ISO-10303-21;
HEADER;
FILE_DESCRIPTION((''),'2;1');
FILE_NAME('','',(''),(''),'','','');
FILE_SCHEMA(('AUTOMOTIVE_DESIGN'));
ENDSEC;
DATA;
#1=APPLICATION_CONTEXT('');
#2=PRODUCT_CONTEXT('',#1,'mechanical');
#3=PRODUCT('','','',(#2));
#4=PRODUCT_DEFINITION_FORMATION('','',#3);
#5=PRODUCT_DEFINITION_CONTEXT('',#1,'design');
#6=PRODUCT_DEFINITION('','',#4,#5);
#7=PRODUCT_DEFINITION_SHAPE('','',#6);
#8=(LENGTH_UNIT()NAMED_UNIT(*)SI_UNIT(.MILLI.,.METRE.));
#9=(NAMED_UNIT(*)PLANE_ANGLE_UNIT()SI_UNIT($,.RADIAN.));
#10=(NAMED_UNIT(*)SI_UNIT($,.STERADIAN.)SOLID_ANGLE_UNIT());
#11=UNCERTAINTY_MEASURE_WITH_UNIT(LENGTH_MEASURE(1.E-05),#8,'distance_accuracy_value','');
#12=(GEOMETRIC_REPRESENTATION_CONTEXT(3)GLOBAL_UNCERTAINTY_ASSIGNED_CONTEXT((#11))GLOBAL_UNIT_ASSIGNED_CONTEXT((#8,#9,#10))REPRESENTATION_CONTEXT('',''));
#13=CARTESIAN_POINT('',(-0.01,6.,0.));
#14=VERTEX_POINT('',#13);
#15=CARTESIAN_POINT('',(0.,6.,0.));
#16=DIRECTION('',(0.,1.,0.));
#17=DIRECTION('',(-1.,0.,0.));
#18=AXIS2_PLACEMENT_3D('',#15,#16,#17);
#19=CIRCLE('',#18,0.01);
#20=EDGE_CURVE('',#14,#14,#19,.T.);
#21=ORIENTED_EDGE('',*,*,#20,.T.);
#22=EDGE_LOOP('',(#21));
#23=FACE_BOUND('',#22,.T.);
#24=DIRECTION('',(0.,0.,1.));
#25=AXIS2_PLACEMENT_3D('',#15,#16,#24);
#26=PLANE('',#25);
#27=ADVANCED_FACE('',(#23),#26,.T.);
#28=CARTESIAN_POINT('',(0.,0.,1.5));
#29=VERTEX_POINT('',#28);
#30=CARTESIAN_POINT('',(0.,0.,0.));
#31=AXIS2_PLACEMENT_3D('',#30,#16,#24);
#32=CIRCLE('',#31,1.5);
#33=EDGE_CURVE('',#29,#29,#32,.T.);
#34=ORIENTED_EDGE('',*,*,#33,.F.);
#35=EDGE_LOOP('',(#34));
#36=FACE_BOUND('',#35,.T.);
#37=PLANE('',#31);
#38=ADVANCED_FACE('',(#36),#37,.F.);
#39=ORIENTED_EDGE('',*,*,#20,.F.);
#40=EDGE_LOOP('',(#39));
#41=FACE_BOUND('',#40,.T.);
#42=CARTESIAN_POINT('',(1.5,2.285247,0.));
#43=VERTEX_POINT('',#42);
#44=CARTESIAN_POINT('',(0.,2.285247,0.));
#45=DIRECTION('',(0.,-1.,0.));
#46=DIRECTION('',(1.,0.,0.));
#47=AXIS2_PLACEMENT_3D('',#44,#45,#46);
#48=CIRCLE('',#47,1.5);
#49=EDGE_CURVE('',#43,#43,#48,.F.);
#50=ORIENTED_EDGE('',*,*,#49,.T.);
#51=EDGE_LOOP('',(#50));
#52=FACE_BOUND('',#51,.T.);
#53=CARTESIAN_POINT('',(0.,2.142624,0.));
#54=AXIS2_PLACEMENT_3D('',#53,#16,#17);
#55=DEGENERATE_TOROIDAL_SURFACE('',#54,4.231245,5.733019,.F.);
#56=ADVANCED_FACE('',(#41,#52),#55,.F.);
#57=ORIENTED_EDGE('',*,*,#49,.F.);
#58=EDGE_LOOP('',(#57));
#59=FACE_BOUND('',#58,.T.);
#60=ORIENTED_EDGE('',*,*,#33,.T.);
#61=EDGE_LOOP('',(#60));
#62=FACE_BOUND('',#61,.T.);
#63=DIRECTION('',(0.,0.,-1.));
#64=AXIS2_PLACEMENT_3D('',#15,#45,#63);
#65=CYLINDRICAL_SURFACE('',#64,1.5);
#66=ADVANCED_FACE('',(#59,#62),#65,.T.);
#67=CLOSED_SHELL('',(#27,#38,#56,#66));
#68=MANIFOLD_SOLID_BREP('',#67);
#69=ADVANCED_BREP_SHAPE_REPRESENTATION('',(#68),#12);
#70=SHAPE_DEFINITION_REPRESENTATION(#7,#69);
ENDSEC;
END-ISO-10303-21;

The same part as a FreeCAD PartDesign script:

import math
import FreeCAD as App
import Part
import Sketcher
from FreeCAD import Vector

doc = App.newDocument("Part")
body = doc.addObject("PartDesign::Body", "Body")

sketch1 = body.newObject("Sketcher::SketchObject", "Sketch")
sketch1.AttachmentSupport = (doc.getObject("XZ_Plane"), [""])
sketch1.MapMode = "FlatFace"
sketch1.addGeometry(Part.Circle(Vector(0, 0, 0), Vector(0, 0, 1), 1.5), False)
sketch1.addConstraint(Sketcher.Constraint("Coincident", 0, 3, -1, 1))
sketch1.addConstraint(Sketcher.Constraint("Diameter", 0, 3.0))
pad1 = body.newObject("PartDesign::Pad", "Pad")
pad1.Profile = sketch1
pad1.Length = 6
pad1.Reversed = True

sketch2 = body.newObject("Sketcher::SketchObject", "Sketch001")
sketch2.AttachmentSupport = (doc.getObject("XY_Plane"), [""])
sketch2.MapMode = "FlatFace"
sketch2.addGeometry(Part.LineSegment(Vector(1.5, 2, 0), Vector(1.669063, 2, 0)), False)
sketch2.addGeometry(Part.LineSegment(Vector(1.669063, 2, 0), Vector(1.669063, 6.084716, 0)), False)
sketch2.addGeometry(Part.LineSegment(Vector(1.669063, 6.084716, 0), Vector(0.01, 6.084716, 0)), False)
sketch2.addGeometry(Part.LineSegment(Vector(0.01, 6.084716, 0), Vector(0.01, 6, 0)), False)
sketch2.addGeometry(Part.ArcOfCircle(Part.Circle(Vector(-4.231245, 2.142624, 0), Vector(0, 0, 1), 5.733019), math.radians(-1.425528), math.radians(42.286252)), False)
sketch2.addConstraint(Sketcher.Constraint("Coincident", 0, 2, 1, 1))
sketch2.addConstraint(Sketcher.Constraint("Coincident", 1, 2, 2, 1))
sketch2.addConstraint(Sketcher.Constraint("Coincident", 2, 2, 3, 1))
sketch2.addConstraint(Sketcher.Constraint("Coincident", 3, 2, 4, 2))
sketch2.addConstraint(Sketcher.Constraint("Coincident", 4, 1, 0, 1))
sketch2.addConstraint(Sketcher.Constraint("Horizontal", 0))
sketch2.addConstraint(Sketcher.Constraint("Vertical", 1))
sketch2.addConstraint(Sketcher.Constraint("Horizontal", 2))
sketch2.addConstraint(Sketcher.Constraint("Vertical", 3))
sketch2.addConstraint(Sketcher.Constraint("DistanceY", -1, 1, 0, 2, 2.0))
sketch2.addConstraint(Sketcher.Constraint("DistanceY", -1, 1, 3, 2, 6.0))
sketch2.addConstraint(Sketcher.Constraint("DistanceX", -1, 1, 4, 1, 1.5))
sketch2.addConstraint(Sketcher.Constraint("DistanceX", -1, 1, 2, 2, 0.01))
sketch2.addConstraint(Sketcher.Constraint("Radius", 4, 5.733019))
sketch2.addConstraint(Sketcher.Constraint("DistanceX", 0, 1, 0, 2, 0.169063))
sketch2.addConstraint(Sketcher.Constraint("DistanceY", 1, 1, 1, 2, 4.084716))
groove = body.newObject("PartDesign::Groove", "Groove")
groove.Profile = sketch2
groove.ReferenceAxis = (sketch2, ["V_Axis"])
groove.Angle = 360

doc.recompute()
